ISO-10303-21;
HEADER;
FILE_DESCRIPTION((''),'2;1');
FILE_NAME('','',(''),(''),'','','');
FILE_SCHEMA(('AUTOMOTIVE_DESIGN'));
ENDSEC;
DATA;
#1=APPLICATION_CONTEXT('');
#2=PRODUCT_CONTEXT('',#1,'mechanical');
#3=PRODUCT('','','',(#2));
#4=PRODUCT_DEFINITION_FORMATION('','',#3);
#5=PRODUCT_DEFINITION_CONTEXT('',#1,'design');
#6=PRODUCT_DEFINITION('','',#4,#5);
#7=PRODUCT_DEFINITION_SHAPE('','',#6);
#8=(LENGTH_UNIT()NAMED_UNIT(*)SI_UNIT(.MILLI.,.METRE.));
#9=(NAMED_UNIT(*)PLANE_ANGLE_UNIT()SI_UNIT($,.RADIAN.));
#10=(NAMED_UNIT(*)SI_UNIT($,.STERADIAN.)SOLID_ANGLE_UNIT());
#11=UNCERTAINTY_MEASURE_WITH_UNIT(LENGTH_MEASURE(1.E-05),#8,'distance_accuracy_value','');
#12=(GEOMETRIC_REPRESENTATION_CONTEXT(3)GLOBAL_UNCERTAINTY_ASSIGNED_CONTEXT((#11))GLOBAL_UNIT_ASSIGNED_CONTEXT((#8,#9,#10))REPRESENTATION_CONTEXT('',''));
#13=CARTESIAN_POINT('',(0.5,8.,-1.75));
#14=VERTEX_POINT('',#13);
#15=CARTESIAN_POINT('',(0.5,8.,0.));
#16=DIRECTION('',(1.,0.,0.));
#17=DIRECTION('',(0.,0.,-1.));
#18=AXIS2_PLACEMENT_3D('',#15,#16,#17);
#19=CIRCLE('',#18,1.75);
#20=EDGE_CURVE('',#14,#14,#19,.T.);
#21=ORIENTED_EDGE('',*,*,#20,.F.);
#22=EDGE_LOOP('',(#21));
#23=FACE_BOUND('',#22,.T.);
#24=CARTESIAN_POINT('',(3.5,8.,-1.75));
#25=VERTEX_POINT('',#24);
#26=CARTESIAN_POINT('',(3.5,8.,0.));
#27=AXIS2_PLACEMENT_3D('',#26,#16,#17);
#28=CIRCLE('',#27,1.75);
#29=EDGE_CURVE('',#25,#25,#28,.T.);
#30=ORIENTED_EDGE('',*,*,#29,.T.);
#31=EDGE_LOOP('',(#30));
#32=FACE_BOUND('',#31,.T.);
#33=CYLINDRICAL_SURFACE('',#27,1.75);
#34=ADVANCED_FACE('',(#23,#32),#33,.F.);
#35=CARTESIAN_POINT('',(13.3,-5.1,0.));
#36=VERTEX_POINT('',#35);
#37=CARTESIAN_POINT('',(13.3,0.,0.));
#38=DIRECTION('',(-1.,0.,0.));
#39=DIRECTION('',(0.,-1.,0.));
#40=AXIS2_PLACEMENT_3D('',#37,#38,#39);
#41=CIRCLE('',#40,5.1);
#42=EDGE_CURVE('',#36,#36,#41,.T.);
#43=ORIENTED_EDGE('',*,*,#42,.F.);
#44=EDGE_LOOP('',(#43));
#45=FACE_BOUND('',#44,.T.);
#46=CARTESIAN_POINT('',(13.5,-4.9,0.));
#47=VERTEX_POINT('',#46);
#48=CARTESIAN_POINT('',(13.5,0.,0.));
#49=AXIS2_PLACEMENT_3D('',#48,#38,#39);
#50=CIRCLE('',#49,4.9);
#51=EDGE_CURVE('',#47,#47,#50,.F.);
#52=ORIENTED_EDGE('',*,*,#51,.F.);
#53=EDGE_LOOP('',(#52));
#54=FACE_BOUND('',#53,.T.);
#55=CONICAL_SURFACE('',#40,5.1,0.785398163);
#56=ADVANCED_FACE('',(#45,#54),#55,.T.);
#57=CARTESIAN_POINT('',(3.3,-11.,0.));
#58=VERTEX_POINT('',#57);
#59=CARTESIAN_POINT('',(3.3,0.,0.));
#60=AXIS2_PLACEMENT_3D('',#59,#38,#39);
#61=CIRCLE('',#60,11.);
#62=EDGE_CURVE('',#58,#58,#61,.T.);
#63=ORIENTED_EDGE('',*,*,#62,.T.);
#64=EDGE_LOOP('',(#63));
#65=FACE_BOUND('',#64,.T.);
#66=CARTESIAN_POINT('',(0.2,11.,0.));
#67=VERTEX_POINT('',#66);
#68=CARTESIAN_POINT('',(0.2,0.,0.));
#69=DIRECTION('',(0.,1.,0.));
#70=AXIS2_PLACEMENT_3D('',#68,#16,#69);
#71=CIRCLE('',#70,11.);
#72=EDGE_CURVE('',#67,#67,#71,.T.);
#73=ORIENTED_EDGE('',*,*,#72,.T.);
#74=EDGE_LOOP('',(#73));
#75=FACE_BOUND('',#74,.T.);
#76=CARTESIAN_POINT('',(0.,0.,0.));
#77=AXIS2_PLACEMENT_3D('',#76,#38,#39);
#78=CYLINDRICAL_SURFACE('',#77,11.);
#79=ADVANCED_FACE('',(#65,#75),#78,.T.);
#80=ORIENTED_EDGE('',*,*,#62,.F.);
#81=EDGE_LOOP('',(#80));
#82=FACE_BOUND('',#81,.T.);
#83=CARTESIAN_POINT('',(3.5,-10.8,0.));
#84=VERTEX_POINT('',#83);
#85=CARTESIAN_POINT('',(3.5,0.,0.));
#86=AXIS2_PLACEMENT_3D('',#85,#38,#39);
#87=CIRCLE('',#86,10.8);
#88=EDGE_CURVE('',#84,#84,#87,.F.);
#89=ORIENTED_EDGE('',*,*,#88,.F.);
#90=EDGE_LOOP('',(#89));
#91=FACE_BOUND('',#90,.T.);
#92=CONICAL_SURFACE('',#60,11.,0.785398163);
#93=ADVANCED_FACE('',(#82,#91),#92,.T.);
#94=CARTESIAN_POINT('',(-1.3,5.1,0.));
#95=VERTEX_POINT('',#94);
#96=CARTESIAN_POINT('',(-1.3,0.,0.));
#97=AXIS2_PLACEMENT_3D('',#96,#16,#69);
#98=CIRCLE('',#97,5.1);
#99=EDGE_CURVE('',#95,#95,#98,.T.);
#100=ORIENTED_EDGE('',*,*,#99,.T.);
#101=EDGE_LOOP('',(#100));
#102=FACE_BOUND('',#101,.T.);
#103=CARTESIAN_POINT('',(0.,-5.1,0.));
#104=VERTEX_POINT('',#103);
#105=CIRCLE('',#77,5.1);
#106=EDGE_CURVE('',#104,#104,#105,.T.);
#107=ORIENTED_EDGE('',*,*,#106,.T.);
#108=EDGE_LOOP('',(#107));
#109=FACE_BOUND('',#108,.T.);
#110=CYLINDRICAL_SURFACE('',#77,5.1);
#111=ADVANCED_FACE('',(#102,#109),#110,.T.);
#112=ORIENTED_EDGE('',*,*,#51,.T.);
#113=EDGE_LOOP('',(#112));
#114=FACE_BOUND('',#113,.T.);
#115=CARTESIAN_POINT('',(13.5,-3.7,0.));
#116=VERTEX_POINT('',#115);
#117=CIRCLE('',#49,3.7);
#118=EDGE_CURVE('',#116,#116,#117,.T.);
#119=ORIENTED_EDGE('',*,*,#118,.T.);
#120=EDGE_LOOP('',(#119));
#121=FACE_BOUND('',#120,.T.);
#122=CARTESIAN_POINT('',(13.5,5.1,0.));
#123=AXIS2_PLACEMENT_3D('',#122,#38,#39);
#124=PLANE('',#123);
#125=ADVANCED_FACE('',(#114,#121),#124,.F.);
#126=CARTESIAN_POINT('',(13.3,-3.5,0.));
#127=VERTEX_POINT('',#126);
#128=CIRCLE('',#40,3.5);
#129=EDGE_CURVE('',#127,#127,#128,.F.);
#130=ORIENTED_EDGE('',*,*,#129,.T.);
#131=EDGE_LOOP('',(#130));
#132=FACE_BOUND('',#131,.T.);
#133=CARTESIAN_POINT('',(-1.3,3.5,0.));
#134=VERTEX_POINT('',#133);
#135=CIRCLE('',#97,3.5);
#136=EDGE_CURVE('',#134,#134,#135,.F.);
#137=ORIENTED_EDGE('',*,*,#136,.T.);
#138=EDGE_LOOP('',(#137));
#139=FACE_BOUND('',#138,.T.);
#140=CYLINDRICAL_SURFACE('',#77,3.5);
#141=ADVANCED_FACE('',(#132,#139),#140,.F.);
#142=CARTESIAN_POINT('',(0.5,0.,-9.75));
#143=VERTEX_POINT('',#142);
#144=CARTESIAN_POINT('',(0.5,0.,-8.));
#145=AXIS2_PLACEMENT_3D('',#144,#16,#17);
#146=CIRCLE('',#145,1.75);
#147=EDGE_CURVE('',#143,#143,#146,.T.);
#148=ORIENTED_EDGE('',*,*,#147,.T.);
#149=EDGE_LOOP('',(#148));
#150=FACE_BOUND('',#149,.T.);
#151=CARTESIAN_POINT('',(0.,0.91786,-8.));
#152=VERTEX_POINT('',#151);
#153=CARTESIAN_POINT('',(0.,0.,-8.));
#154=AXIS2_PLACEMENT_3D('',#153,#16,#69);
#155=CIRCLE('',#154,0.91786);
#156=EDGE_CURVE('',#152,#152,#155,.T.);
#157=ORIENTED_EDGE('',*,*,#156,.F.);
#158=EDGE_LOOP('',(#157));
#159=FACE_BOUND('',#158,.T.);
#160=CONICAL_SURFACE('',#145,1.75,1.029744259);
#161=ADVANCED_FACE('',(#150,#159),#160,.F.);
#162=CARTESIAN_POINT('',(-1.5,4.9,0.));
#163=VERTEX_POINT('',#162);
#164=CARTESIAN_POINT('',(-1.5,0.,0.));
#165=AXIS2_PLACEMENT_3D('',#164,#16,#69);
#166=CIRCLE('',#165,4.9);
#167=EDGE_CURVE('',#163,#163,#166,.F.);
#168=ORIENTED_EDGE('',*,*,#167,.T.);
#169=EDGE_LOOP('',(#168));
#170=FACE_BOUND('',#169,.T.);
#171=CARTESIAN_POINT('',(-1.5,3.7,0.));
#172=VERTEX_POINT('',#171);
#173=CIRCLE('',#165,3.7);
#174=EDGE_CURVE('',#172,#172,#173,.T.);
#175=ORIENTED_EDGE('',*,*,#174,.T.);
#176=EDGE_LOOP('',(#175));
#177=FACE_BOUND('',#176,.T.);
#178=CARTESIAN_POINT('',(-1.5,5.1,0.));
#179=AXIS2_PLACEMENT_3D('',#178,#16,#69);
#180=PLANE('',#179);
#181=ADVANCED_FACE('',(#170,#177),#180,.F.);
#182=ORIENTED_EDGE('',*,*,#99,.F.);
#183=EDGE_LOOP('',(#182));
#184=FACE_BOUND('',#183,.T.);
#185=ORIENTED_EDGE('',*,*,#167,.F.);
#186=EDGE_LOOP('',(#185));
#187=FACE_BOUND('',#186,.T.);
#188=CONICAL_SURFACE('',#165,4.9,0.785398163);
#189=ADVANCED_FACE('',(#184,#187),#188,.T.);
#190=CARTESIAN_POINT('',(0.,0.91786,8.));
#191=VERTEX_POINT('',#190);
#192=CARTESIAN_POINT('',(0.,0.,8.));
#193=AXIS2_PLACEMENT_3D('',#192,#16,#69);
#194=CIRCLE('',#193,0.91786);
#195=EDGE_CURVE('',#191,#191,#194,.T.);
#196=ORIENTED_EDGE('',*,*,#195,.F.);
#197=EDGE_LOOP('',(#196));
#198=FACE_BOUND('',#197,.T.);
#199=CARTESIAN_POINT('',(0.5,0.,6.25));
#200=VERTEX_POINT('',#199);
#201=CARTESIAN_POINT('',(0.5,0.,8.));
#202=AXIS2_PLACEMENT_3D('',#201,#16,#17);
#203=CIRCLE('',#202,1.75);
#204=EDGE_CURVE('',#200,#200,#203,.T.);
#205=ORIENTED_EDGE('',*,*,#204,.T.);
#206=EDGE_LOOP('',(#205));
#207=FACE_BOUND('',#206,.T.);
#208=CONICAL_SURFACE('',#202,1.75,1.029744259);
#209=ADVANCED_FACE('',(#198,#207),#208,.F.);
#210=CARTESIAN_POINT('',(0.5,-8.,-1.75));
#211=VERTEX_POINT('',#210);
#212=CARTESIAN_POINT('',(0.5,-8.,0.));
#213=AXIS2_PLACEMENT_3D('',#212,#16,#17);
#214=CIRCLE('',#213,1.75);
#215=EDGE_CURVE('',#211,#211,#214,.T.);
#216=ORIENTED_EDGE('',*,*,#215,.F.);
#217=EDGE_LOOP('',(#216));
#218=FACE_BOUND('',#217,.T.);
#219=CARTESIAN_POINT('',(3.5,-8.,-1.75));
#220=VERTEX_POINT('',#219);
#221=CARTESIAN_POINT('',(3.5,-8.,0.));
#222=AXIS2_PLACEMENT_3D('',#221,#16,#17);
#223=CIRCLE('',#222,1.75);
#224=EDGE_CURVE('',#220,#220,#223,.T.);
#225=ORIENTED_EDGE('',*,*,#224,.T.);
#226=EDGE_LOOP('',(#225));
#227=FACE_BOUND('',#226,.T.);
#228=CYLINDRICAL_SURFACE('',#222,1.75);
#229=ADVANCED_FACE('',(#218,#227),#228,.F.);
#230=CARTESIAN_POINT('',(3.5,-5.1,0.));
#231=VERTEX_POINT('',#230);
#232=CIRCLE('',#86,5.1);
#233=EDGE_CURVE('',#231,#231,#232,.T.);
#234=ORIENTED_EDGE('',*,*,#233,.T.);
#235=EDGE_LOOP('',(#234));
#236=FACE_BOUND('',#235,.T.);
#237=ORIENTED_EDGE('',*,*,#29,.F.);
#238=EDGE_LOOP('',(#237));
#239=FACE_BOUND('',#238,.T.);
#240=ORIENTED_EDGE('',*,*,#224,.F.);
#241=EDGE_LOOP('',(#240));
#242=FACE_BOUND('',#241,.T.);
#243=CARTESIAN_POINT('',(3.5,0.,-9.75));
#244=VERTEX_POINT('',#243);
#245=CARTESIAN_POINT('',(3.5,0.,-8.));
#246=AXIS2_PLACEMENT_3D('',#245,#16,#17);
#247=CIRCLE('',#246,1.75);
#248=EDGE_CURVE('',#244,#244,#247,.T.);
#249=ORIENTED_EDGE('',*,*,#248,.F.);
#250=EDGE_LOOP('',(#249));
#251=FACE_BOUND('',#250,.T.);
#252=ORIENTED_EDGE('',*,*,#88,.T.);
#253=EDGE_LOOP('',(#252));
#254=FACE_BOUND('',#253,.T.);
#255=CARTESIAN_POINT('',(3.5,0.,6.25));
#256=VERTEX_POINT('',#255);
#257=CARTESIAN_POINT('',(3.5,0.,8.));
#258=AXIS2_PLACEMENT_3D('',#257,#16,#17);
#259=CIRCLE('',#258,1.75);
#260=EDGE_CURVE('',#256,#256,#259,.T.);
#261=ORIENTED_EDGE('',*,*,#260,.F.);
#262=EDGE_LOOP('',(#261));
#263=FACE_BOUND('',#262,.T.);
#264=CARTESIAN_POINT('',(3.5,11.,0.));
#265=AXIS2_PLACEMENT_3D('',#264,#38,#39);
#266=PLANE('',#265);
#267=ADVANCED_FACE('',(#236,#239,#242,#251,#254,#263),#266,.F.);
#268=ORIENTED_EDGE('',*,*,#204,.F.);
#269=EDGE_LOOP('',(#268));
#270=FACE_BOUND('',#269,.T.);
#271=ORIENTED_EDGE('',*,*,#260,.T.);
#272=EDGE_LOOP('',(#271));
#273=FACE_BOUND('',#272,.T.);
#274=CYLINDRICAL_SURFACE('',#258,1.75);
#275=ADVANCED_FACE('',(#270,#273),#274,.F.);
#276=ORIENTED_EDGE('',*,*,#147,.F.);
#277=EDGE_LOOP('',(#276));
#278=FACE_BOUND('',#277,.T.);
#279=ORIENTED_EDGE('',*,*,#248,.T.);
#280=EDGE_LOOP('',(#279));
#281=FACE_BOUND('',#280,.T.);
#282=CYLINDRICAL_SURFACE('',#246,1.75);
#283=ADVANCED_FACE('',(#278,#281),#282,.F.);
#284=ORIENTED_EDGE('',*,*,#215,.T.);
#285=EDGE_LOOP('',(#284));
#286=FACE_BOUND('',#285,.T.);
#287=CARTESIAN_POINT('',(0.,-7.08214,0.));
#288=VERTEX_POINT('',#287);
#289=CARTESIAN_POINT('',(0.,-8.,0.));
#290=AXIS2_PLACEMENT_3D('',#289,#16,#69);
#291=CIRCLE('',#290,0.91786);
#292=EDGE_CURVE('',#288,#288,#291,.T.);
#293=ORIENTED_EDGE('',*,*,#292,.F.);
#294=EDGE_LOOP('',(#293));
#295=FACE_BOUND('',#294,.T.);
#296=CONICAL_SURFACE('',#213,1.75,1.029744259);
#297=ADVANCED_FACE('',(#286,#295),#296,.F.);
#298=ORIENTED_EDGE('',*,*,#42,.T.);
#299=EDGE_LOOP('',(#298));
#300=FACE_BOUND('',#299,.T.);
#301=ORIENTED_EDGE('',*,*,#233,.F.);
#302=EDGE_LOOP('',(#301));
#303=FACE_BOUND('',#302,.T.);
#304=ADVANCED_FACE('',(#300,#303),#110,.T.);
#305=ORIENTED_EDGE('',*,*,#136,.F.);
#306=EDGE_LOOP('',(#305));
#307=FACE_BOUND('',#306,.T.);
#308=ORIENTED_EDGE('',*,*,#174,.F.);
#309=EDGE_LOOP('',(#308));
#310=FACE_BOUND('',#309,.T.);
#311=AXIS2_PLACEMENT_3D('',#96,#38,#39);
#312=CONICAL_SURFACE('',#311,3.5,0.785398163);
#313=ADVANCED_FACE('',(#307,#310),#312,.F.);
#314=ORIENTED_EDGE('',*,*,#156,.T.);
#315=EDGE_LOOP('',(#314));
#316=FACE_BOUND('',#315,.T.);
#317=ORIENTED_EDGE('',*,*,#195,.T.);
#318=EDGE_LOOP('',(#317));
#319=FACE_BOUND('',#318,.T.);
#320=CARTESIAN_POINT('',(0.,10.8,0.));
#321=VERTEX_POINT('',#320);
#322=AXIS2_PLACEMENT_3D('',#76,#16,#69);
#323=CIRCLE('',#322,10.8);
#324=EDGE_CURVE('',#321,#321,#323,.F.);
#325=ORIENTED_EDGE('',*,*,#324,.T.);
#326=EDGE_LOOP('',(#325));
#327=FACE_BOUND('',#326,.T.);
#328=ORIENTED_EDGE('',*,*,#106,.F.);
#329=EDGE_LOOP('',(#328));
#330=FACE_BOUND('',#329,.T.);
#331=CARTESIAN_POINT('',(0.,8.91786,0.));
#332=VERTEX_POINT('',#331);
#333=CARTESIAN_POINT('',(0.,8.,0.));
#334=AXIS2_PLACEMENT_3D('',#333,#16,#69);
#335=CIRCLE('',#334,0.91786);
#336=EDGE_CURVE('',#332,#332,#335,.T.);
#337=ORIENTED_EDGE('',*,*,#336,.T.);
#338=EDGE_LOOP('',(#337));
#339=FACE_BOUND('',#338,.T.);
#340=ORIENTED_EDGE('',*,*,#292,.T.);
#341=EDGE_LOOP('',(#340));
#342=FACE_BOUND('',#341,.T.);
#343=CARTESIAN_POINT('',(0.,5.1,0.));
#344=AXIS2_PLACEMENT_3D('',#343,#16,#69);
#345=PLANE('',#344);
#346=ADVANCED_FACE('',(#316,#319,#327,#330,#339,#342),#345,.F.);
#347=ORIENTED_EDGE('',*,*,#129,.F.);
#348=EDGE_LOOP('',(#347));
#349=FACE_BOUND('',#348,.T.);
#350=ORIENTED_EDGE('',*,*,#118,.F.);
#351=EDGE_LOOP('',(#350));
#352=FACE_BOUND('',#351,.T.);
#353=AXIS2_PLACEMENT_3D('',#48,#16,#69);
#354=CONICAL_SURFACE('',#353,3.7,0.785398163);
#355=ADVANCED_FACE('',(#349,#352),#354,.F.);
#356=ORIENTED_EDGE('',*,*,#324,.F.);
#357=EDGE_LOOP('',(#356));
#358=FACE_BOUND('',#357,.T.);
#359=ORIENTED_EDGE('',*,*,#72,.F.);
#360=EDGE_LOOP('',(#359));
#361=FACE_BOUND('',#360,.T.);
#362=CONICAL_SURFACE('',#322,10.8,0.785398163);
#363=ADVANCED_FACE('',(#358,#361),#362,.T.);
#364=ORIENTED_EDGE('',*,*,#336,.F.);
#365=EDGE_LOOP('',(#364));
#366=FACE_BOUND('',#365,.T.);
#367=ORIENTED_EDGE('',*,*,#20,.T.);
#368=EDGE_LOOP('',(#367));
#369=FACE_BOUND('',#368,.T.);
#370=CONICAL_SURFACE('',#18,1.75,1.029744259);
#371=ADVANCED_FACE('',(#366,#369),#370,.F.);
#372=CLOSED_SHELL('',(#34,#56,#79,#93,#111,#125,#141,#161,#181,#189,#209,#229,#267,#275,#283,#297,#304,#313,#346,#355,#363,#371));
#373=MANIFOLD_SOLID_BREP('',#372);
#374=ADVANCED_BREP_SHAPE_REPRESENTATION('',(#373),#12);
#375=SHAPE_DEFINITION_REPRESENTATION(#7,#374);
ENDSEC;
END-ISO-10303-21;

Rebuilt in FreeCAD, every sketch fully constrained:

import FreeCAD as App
import Part
import Sketcher
Q = App.Units.Quantity


def edges_at(feature, points):
    """Names of the edges that pass closest to the given points."""
    edges = feature.Shape.Edges
    near = lambda p: min(range(len(edges)), key=lambda i: edges[i].distToShape(Part.Vertex(*p))[0])
    return sorted({f"Edge{near(p) + 1}" for p in points})


def add_polygon(sketch, points):
    """Adds a closed chain of lines whose ends are joined by coincident constraints."""
    first, n = sketch.GeometryCount, len(points)
    for a, b in zip(points, points[1:] + points[:1]):
        sketch.addGeometry(Part.LineSegment(App.Vector(*a, 0), App.Vector(*b, 0)), False)
    for i in range(n):
        sketch.addConstraint(Sketcher.Constraint("Coincident", first + i, 2, first + (i + 1) % n, 1))

doc = App.newDocument("Part")
body = doc.addObject("PartDesign::Body", "Body")

# Sketch on XY plane
sketch1 = body.newObject("Sketcher::SketchObject", "Sketch")
sketch1.AttachmentSupport = (doc.getObject("XY_Plane"), [""])
sketch1.MapMode = "FlatFace"
add_polygon(sketch1, [(0, 11), (0, 5.1), (-1.5, 5.1), (-1.5, 3.5), (13.5, 3.5), (13.5, 5.1), (3.5, 5.1), (3.5, 11)])  # lines 0-7
sketch1.addConstraint([
    Sketcher.Constraint("Vertical", 0),
    Sketcher.Constraint("Horizontal", 1),
    Sketcher.Constraint("Vertical", 2),
    Sketcher.Constraint("Horizontal", 3),
    Sketcher.Constraint("Vertical", 4),
    Sketcher.Constraint("Horizontal", 5),
    Sketcher.Constraint("Vertical", 6),
    Sketcher.Constraint("Horizontal", 7),
    Sketcher.Constraint("PointOnObject", 0, 2, -2),
    Sketcher.Constraint("Horizontal", 1, 2, 4, 2),
    Sketcher.Constraint("DistanceX", 3, 1, 3, 2, 15.0),
    Sketcher.Constraint("DistanceX", 5, 2, 5, 1, 10.0),
    Sketcher.Constraint("DistanceX", 1, 2, 1, 1, 1.5),
    Sketcher.Constraint("DistanceY", 0, 2, 0, 1, 5.9),
    Sketcher.Constraint("DistanceY", 2, 2, 2, 1, 1.6),
    Sketcher.Constraint("DistanceY", -1, 1, 6, 2, 11.0),
])
revolution = body.newObject("PartDesign::Revolution", "Revolution")
revolution.Profile = sketch1
revolution.ReferenceAxis = (sketch1, ["H_Axis"])
revolution.Angle = 360
doc.recompute()

chamfer = body.newObject("PartDesign::Chamfer", "Chamfer")
chamfer.Base = (revolution, edges_at(revolution, [
    (-1.5, 3.5, 0),
    (13.5, 3.5, 0),
    (13.5, 5.1, 0),
    (3.5, 11, 0),
    (0, 11, 0),
    (-1.5, 5.1, 0),
]))
chamfer.Size = 0.2

# Sketch on XZ plane
sketch2 = body.newObject("Sketcher::SketchObject", "Sketch001")
sketch2.AttachmentSupport = (doc.getObject("XZ_Plane"), [""])
sketch2.MapMode = "FlatFace"
sketch2.AttachmentOffset = App.Placement(App.Vector(0, 0, -8), App.Rotation())
add_polygon(sketch2, [(-0.6, 0), (3.5, 0), (3.5, -1.8), (0.5, -1.8)])  # lines 0-3
sketch2.addConstraint([
    Sketcher.Constraint("Horizontal", 0),
    Sketcher.Constraint("Vertical", 1),
    Sketcher.Constraint("Horizontal", 2),
    Sketcher.Constraint("PointOnObject", 0, 2, -1),
    Sketcher.Constraint("DistanceX", 2, 2, 2, 1, 3.0),
    Sketcher.Constraint("Angle", 3, Q("121 deg")),
    Sketcher.Constraint("DistanceY", 1, 2, 1, 1, 1.75),
    Sketcher.Constraint("DistanceX", -1, 1, 0, 2, 3.5),
])
groove = body.newObject("PartDesign::Groove", "Groove")
groove.Profile = sketch2
groove.ReferenceAxis = (sketch2, ["H_Axis"])
groove.Angle = 360
doc.recompute()

polarpattern = body.newObject("PartDesign::PolarPattern", "PolarPattern")
polarpattern.Originals = [groove]
polarpattern.Axis = (doc.getObject("X_Axis"), [""])
polarpattern.Angle = 360
polarpattern.Occurrences = 4
body.Tip = polarpattern

doc.recompute()
